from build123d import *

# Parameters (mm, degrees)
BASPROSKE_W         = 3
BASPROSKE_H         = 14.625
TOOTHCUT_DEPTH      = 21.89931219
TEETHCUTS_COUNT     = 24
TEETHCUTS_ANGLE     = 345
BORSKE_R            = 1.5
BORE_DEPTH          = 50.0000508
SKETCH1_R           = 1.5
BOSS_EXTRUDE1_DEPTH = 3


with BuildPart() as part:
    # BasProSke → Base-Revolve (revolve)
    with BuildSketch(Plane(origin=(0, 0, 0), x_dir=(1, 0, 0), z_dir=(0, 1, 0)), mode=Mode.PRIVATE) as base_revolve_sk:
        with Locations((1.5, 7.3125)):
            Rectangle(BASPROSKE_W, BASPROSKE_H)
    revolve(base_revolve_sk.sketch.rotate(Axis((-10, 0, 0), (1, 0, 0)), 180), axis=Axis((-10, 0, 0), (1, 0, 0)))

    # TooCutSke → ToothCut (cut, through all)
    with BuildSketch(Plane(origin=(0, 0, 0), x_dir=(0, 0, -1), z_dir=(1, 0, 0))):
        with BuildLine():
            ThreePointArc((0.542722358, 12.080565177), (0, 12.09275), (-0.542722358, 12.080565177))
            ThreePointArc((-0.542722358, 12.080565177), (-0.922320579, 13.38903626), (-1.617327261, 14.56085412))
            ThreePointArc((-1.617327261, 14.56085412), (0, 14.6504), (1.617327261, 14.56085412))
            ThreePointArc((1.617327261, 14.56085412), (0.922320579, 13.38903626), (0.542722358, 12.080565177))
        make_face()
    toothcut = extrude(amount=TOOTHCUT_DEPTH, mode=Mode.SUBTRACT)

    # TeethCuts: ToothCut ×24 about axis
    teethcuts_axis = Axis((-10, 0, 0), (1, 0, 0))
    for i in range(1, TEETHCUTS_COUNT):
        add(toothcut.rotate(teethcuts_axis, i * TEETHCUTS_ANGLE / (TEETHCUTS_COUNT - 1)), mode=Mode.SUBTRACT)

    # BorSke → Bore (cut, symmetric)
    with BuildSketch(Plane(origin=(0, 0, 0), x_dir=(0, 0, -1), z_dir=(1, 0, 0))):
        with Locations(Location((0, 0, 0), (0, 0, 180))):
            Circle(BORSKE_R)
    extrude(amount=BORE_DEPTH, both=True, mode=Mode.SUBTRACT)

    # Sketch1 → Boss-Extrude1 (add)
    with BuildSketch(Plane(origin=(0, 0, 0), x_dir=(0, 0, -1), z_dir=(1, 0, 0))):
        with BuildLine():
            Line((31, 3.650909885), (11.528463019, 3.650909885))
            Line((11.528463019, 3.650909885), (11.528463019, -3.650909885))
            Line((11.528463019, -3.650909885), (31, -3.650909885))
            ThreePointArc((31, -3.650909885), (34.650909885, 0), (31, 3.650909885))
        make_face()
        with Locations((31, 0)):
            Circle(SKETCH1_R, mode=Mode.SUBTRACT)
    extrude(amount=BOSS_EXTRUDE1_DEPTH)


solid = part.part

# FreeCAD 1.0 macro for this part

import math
import FreeCAD as App
import Part
import Sketcher
from FreeCAD import Vector

doc = App.newDocument("Part")
body = doc.addObject("PartDesign::Body", "Body")

# Sketch on XZ plane
sketch1 = body.newObject("Sketcher::SketchObject", "Sketch")
sketch1.AttachmentSupport = (doc.getObject("XZ_Plane"), [""])
sketch1.MapMode = "FlatFace"
sketch1.addGeometry([
    Part.LineSegment(Vector(0, -14.625, 0), Vector(0, 0, 0)),
    Part.LineSegment(Vector(0, 0, 0), Vector(3, 0, 0)),
    Part.LineSegment(Vector(3, 0, 0), Vector(3, -14.625, 0)),
    Part.LineSegment(Vector(3, -14.625, 0), Vector(0, -14.625, 0)),
], False)
sketch1.addConstraint([
    Sketcher.Constraint("Coincident", 0, 2, 1, 1),
    Sketcher.Constraint("Coincident", 1, 2, 2, 1),
    Sketcher.Constraint("Coincident", 2, 2, 3, 1),
    Sketcher.Constraint("Coincident", 3, 2, 0, 1),
    Sketcher.Constraint("Vertical", 0),
    Sketcher.Constraint("Horizontal", 1),
    Sketcher.Constraint("Vertical", 2),
    Sketcher.Constraint("Horizontal", 3),
    Sketcher.Constraint("Coincident", 0, 2, -1, 1),
    Sketcher.Constraint("DistanceX", 1, 1, 1, 2, 3.0),
    Sketcher.Constraint("DistanceY", 0, 1, 0, 2, 14.625),
])
revolution = body.newObject("PartDesign::Revolution", "Revolution")
revolution.Profile = sketch1
revolution.ReferenceAxis = (sketch1, ["H_Axis"])
revolution.Angle = 360

# Sketch on YZ plane
sketch2 = body.newObject("Sketcher::SketchObject", "Sketch001")
sketch2.AttachmentSupport = (doc.getObject("YZ_Plane"), [""])
sketch2.MapMode = "FlatFace"
sketch2.addGeometry([
    Part.ArcOfCircle(Part.Circle(Vector(0, 0, 0), Vector(0, 0, 1), 12.09275), math.radians(-2.572297), math.radians(2.572297)),
    Part.ArcOfCircle(Part.Circle(Vector(11.242271, -5.877257, 0), Vector(0, 0, 1), 5.4), math.radians(52.080588), math.radians(81.069299)),
    Part.ArcOfCircle(Part.Circle(Vector(0, 0, 0), Vector(0, 0, 1), 14.6504), math.radians(-6.338072), math.radians(6.338072)),
    Part.ArcOfCircle(Part.Circle(Vector(11.242271, 5.877257, 0), Vector(0, 0, 1), 5.4), math.radians(-81.069299), math.radians(-52.080588)),
], False)
sketch2.addConstraint([
    Sketcher.Constraint("Coincident", 0, 1, 1, 2),
    Sketcher.Constraint("Coincident", 1, 1, 2, 1),
    Sketcher.Constraint("Coincident", 2, 2, 3, 2),
    Sketcher.Constraint("Coincident", 3, 1, 0, 2),
    Sketcher.Constraint("Coincident", 0, 3, -1, 1),
    Sketcher.Constraint("Coincident", 2, 3, -1, 1),
    Sketcher.Constraint("Equal", 1, 3),
    Sketcher.Constraint("Symmetric", 1, 3, 3, 3, -1),
    Sketcher.Constraint("Radius", 1, 5.4),
    Sketcher.Constraint("Radius", 2, 14.6504),
    Sketcher.Constraint("Radius", 0, 12.09275),
    Sketcher.Constraint("DistanceX", -1, 1, 1, 3, 11.242271),
    Sketcher.Constraint("DistanceY", 0, 1, 3, 3, 6.41998),
])
pocket1 = body.newObject("PartDesign::Pocket", "Pocket")
pocket1.Profile = sketch2
pocket1.Type = "ThroughAll"
pocket1.Reversed = True
doc.recompute()

polarpattern = body.newObject("PartDesign::PolarPattern", "PolarPattern")
polarpattern.Originals = [pocket1]
polarpattern.Axis = (doc.getObject("X_Axis"), [""])
polarpattern.Angle = 360
polarpattern.Occurrences = 24
body.Tip = polarpattern

# Sketch on YZ plane
sketch3 = body.newObject("Sketcher::SketchObject", "Sketch002")
sketch3.AttachmentSupport = (doc.getObject("YZ_Plane"), [""])
sketch3.MapMode = "FlatFace"
sketch3.addGeometry(Part.Circle(Vector(0, 0, 0), Vector(0, 0, 1), 1.5), False)
sketch3.addConstraint([
    Sketcher.Constraint("Coincident", 0, 3, -1, 1),
    Sketcher.Constraint("Diameter", 0, 3.0),
])
pocket2 = body.newObject("PartDesign::Pocket", "Pocket001")
pocket2.Profile = sketch3
pocket2.Length = 100.000102
pocket2.Midplane = True

# Sketch on YZ plane
sketch4 = body.newObject("Sketcher::SketchObject", "Sketch003")
sketch4.AttachmentSupport = (doc.getObject("YZ_Plane"), [""])
sketch4.MapMode = "FlatFace"
sketch4.addGeometry([
    Part.LineSegment(Vector(3.65091, -31, 0), Vector(3.65091, -11.528463, 0)),  # 0
    Part.LineSegment(Vector(3.65091, -11.528463, 0), Vector(-3.65091, -11.528463, 0)),  # 1
    Part.LineSegment(Vector(-3.65091, -11.528463, 0), Vector(-3.65091, -31, 0)),  # 2
    Part.ArcOfCircle(Part.Circle(Vector(0, -31, 0), Vector(0, 0, 1), 3.65091), math.radians(180), math.radians(360)),  # 3
    Part.Circle(Vector(0, -31, 0), Vector(0, 0, 1), 1.5),  # 4
], False)
sketch4.addConstraint([
    Sketcher.Constraint("Coincident", 0, 2, 1, 1),
    Sketcher.Constraint("Coincident", 1, 2, 2, 1),
    Sketcher.Constraint("Tangent", 2, 2, 3, 1),
    Sketcher.Constraint("Tangent", 3, 2, 0, 1),
    Sketcher.Constraint("Vertical", 0),
    Sketcher.Constraint("Horizontal", 1),
    Sketcher.Constraint("Vertical", 2),
    Sketcher.Constraint("Coincident", 4, 3, 3, 3),
    Sketcher.Constraint("PointOnObject", 3, 3, -2),
    Sketcher.Constraint("Diameter", 4, 3.0),
    Sketcher.Constraint("DistanceY", 3, 3, -1, 1, 31.0),
    Sketcher.Constraint("Radius", 3, 3.65091),
    Sketcher.Constraint("DistanceY", 0, 1, 0, 2, 19.471537),
])
pad1 = body.newObject("PartDesign::Pad", "Pad")
pad1.Profile = sketch4
pad1.Length = 3

doc.recompute()
